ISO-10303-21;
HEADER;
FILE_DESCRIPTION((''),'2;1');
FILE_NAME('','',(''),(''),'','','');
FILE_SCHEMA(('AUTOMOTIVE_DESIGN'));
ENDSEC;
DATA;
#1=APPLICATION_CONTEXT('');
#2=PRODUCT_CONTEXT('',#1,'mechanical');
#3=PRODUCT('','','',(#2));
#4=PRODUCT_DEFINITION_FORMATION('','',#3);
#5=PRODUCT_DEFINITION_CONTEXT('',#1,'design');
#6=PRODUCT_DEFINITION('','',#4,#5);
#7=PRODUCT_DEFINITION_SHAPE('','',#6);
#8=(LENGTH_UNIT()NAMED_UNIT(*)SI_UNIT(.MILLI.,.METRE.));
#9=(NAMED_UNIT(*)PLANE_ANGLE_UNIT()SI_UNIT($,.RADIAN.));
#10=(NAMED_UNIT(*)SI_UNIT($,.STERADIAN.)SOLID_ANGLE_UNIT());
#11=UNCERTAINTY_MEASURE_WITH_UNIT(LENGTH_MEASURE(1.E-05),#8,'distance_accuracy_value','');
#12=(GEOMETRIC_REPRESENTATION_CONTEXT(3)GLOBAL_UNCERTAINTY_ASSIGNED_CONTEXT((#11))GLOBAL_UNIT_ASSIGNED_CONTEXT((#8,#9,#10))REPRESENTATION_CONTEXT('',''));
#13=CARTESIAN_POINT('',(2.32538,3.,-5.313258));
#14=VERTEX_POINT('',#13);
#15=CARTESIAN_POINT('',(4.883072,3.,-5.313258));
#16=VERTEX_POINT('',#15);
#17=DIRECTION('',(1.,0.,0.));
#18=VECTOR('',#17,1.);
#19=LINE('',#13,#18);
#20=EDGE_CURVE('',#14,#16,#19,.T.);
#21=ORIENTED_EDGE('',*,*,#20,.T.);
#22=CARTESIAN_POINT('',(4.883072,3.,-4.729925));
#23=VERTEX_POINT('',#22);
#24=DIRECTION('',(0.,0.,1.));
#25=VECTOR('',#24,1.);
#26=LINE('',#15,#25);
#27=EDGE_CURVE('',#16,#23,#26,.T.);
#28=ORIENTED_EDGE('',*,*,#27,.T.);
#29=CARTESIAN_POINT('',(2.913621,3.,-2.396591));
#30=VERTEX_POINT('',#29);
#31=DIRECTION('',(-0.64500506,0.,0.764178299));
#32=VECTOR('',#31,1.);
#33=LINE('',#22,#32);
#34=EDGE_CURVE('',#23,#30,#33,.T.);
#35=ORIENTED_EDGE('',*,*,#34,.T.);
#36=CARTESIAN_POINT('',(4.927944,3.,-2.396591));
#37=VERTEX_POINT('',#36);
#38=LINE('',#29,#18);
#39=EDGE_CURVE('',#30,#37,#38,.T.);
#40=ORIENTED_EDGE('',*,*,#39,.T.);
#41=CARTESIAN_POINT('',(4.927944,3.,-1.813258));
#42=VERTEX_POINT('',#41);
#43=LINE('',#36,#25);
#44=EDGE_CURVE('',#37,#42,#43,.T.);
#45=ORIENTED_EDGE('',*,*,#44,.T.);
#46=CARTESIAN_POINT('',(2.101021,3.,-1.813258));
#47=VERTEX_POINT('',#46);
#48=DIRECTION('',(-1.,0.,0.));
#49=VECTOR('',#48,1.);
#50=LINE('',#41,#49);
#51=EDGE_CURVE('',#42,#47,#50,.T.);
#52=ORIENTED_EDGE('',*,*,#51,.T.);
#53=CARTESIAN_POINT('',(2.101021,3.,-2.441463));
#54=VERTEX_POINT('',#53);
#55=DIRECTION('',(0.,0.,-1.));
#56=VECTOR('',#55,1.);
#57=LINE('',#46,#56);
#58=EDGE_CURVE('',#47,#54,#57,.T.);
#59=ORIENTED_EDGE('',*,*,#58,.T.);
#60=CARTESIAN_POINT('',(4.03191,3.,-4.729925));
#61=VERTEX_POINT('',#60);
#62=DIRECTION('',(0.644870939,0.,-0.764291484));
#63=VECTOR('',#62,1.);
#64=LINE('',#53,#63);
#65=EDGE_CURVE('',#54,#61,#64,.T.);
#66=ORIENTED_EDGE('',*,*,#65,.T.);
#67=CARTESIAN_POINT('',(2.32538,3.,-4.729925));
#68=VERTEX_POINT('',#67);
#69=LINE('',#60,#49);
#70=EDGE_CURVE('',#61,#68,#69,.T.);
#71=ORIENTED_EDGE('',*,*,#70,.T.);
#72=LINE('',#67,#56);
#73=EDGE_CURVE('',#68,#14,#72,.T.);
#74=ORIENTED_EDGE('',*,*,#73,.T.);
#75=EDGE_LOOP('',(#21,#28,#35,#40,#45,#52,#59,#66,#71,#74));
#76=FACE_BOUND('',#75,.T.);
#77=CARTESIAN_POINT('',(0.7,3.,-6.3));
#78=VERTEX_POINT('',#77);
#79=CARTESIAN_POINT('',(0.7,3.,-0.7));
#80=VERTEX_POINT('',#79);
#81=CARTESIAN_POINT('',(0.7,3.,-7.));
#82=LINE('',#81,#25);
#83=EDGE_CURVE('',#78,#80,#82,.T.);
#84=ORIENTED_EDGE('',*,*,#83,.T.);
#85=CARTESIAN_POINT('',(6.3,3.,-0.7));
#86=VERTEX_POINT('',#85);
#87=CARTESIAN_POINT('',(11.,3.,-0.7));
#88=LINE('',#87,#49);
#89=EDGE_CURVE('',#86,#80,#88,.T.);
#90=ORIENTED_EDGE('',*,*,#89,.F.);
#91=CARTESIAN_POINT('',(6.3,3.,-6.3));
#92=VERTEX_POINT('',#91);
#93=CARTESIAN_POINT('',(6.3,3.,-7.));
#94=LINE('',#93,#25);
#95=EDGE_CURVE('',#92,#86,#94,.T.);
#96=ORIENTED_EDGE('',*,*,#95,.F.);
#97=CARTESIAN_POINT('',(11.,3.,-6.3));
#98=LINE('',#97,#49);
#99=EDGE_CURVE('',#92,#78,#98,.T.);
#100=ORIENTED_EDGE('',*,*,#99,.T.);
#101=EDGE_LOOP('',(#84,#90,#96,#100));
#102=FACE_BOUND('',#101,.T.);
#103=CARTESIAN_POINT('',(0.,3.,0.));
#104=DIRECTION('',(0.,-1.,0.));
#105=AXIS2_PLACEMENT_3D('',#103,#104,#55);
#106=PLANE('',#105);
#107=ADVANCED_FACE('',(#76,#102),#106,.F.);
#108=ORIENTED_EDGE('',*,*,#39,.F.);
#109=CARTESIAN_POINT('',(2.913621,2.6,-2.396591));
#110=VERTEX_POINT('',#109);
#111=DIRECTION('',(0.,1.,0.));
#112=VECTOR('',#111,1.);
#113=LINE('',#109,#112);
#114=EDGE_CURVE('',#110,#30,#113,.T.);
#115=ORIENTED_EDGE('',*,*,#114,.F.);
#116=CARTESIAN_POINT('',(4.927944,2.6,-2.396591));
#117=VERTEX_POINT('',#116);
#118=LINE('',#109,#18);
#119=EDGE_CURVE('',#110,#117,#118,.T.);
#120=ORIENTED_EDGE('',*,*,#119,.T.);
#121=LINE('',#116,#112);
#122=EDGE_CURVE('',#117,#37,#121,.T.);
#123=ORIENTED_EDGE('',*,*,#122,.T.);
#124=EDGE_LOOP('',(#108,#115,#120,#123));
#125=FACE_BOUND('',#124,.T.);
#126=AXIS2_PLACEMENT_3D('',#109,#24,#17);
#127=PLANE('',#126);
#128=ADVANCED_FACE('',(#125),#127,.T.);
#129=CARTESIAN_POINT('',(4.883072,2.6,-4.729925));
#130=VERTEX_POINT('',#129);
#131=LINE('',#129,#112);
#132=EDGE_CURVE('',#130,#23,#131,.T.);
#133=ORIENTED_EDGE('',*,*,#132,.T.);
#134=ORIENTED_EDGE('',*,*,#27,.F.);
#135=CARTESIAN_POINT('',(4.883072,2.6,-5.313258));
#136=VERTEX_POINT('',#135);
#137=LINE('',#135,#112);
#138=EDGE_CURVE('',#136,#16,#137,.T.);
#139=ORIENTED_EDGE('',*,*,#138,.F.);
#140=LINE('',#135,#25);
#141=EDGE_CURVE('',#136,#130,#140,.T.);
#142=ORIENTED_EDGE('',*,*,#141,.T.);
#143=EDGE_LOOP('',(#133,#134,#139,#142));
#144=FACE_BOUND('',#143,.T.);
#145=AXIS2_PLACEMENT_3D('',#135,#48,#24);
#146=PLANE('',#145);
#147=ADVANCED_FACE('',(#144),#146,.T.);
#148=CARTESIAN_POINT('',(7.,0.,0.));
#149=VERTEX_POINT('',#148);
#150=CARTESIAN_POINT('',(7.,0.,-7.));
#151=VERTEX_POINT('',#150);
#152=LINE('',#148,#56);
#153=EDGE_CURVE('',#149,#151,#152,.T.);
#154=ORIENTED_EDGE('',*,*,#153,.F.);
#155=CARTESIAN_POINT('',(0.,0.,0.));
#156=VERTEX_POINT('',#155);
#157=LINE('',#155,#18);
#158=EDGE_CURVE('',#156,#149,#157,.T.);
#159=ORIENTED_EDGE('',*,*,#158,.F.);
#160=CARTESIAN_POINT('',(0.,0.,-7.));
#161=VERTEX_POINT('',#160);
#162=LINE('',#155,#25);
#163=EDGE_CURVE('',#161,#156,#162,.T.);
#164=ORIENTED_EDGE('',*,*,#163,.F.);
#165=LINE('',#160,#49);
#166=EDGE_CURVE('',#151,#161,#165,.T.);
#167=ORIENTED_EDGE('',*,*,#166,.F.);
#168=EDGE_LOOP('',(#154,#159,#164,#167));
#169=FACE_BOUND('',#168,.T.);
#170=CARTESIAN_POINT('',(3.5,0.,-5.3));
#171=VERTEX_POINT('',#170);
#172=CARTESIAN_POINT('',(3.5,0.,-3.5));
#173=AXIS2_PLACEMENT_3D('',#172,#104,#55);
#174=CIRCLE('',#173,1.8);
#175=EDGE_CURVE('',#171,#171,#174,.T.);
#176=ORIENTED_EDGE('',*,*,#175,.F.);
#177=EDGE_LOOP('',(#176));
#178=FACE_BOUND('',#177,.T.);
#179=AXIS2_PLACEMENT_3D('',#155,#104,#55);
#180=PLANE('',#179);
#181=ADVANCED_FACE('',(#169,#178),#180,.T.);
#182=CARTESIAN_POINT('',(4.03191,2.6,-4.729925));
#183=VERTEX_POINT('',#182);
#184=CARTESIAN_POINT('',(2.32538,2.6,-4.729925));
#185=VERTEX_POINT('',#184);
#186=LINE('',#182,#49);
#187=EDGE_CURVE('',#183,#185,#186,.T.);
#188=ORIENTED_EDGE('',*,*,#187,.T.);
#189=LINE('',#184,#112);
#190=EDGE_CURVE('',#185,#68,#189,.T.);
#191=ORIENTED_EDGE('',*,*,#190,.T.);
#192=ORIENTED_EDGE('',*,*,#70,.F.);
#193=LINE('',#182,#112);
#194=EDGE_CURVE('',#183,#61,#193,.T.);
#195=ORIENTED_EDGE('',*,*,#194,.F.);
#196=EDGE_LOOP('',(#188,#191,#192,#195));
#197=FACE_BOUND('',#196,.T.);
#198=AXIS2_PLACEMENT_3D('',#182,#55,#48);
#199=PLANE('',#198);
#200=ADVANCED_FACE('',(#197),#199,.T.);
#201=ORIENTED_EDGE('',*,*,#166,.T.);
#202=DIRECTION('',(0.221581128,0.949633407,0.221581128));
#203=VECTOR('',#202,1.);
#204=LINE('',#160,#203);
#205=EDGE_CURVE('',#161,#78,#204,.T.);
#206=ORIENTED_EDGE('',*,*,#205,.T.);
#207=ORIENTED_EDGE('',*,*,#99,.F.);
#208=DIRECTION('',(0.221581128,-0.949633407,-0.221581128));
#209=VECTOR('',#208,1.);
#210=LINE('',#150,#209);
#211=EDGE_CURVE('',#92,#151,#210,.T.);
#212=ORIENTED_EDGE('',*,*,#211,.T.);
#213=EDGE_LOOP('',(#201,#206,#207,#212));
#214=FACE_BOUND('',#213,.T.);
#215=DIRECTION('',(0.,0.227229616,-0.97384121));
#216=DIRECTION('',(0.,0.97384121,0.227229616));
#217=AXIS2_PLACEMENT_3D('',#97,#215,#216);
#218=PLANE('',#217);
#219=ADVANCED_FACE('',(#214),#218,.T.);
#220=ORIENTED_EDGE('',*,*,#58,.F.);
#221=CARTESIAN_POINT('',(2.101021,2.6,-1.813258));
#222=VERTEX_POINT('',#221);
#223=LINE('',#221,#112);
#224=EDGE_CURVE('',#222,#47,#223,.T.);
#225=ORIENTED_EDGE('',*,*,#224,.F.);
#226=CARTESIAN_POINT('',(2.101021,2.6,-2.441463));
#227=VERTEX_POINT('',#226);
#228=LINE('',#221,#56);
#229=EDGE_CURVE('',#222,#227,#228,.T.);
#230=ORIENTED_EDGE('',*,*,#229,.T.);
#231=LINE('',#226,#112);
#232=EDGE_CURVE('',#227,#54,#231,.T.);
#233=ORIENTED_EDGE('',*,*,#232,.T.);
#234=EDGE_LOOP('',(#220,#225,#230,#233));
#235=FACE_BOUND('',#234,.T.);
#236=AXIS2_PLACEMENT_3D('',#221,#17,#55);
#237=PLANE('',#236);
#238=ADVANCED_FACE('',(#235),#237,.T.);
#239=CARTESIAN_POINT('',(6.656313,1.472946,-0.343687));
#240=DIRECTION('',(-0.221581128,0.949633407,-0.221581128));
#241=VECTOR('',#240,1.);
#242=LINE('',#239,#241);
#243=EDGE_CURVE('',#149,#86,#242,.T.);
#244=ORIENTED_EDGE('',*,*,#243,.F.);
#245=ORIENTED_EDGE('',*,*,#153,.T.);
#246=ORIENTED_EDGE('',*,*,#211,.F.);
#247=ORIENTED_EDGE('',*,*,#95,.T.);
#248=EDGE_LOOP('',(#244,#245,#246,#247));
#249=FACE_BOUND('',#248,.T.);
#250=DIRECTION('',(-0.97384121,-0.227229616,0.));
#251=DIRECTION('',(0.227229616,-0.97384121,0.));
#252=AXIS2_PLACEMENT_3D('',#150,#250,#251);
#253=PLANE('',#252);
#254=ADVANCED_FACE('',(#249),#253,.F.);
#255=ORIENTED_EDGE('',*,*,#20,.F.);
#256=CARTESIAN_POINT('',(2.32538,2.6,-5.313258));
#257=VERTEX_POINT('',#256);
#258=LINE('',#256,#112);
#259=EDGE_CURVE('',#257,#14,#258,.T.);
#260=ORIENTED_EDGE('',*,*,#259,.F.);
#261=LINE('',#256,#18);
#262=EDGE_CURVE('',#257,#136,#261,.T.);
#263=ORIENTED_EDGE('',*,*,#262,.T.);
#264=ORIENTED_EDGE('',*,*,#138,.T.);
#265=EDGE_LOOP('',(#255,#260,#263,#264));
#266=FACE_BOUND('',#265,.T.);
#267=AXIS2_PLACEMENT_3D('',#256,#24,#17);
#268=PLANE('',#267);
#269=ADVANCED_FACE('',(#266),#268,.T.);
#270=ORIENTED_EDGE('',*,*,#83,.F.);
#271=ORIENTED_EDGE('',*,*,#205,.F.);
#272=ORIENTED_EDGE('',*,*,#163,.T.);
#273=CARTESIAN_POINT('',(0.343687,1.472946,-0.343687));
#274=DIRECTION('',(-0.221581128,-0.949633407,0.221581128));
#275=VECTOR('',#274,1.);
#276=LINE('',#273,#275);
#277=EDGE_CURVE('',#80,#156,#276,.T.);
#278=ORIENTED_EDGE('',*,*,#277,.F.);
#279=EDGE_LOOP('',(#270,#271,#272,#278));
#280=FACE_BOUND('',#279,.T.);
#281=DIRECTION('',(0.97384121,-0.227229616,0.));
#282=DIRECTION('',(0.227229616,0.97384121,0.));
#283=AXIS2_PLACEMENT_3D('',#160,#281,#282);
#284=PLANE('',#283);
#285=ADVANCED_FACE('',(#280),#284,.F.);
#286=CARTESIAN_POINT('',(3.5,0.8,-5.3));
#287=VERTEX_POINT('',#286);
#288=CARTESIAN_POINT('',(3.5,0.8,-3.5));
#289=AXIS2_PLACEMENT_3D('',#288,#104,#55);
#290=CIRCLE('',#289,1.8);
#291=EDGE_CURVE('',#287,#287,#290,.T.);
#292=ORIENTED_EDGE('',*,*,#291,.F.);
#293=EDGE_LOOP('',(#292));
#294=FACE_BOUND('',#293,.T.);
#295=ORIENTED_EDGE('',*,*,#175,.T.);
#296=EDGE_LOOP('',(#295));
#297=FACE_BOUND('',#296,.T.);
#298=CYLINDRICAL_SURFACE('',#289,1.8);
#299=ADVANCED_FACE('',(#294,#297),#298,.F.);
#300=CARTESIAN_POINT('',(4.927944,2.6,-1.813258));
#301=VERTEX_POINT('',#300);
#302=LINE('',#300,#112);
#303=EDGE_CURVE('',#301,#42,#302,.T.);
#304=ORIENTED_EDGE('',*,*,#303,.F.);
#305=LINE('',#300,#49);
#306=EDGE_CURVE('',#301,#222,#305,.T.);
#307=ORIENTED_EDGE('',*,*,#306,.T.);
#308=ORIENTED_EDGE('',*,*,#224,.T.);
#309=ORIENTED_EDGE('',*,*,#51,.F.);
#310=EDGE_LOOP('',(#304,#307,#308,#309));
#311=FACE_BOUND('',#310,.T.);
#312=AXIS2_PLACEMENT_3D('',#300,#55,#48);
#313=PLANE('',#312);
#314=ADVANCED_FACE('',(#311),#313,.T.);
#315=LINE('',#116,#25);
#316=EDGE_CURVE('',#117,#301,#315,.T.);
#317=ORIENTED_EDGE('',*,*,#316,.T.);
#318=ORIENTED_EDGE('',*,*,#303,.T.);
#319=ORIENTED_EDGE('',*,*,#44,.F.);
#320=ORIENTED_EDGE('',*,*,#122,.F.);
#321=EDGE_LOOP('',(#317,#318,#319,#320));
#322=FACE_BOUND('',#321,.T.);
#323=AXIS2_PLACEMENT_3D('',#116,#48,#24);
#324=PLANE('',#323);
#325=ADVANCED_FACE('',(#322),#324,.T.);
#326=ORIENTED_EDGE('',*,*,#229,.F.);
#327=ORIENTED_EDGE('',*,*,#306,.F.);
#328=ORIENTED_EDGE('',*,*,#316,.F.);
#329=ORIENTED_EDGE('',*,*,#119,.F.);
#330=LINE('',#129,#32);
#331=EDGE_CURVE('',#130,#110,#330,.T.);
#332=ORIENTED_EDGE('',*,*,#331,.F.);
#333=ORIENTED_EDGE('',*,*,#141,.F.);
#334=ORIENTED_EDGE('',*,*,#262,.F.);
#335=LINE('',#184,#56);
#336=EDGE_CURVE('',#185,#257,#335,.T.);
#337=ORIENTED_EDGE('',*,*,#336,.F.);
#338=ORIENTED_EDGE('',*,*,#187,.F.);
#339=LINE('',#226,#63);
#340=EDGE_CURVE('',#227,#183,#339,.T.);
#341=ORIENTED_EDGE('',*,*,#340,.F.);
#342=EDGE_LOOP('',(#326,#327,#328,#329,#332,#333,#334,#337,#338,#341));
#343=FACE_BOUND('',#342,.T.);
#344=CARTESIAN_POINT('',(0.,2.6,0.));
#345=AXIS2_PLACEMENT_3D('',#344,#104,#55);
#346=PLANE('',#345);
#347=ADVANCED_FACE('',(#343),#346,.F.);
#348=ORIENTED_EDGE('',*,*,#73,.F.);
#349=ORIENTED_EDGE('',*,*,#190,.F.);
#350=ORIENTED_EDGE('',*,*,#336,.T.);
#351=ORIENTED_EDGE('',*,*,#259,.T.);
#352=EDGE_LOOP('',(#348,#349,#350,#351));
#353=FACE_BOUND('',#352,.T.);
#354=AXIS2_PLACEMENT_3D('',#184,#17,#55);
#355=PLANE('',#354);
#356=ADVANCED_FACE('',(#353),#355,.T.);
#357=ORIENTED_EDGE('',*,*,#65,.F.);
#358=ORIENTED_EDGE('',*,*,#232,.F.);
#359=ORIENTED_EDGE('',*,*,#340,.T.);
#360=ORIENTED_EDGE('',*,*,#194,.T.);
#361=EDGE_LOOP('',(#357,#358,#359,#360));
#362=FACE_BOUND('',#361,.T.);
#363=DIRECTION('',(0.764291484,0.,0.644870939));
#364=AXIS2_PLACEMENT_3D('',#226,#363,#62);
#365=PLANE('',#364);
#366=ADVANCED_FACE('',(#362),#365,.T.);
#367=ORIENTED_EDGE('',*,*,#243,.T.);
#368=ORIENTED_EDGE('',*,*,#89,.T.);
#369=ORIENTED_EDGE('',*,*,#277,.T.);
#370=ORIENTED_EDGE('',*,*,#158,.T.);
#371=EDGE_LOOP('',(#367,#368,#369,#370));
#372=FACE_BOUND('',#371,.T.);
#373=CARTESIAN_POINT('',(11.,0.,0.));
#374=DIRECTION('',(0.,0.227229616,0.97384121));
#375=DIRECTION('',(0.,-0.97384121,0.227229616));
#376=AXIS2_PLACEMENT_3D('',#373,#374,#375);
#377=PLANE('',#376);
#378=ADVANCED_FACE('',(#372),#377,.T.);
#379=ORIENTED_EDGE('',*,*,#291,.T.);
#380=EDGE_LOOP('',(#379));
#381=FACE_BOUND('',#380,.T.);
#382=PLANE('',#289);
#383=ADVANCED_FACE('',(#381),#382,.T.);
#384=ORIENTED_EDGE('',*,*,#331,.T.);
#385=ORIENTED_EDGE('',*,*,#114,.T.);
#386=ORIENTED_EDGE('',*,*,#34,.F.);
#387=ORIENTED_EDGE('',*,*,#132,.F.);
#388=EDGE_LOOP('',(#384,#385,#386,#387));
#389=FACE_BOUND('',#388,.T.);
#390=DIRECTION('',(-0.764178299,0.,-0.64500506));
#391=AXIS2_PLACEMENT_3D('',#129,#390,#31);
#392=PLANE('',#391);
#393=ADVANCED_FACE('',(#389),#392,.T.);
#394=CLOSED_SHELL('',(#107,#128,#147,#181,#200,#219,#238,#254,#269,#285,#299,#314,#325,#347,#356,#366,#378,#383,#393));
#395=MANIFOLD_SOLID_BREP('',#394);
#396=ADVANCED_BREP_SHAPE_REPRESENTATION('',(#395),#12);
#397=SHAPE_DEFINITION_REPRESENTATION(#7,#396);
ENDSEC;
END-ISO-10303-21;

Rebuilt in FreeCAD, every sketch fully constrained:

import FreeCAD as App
import Part
import Sketcher
from FreeCAD import Vector

doc = App.newDocument("Part")
body = doc.addObject("PartDesign::Body", "Body")

sketch1 = body.newObject("Sketcher::SketchObject", "Sketch")
sketch1.AttachmentSupport = (doc.getObject("XZ_Plane"), [""])
sketch1.MapMode = "FlatFace"
sketch1.addGeometry([
    Part.LineSegment(Vector(0, -7, 0), Vector(0, 0, 0)),
    Part.LineSegment(Vector(0, 0, 0), Vector(7, 0, 0)),
    Part.LineSegment(Vector(7, 0, 0), Vector(7, -7, 0)),
    Part.LineSegment(Vector(7, -7, 0), Vector(0, -7, 0)),
], False)
sketch1.addConstraint([
    Sketcher.Constraint("Coincident", 0, 2, 1, 1),
    Sketcher.Constraint("Coincident", 1, 2, 2, 1),
    Sketcher.Constraint("Coincident", 2, 2, 3, 1),
    Sketcher.Constraint("Coincident", 3, 2, 0, 1),
    Sketcher.Constraint("Vertical", 0),
    Sketcher.Constraint("Horizontal", 1),
    Sketcher.Constraint("Vertical", 2),
    Sketcher.Constraint("Horizontal", 3),
    Sketcher.Constraint("Coincident", 0, 2, -1, 1),
    Sketcher.Constraint("Equal", 3, 0),
    Sketcher.Constraint("DistanceX", 1, 1, 1, 2, 7.0),
])
pad1 = body.newObject("PartDesign::Pad", "Pad")
pad1.Profile = sketch1
pad1.Length = 3
pad1.Reversed = True

sketch2 = body.newObject("Sketcher::SketchObject", "Sketch001")
sketch2.AttachmentSupport = (doc.getObject("XY_Plane"), [""])
sketch2.MapMode = "FlatFace"
sketch2.addGeometry([
    Part.LineSegment(Vector(0, 0, 0), Vector(0.7, 3, 0)),
    Part.LineSegment(Vector(0.7, 3, 0), Vector(0, 3, 0)),
    Part.LineSegment(Vector(0, 3, 0), Vector(0, 0, 0)),
    Part.LineSegment(Vector(6.3, 3, 0), Vector(7, 0, 0)),
    Part.LineSegment(Vector(7, 0, 0), Vector(7, 3, 0)),
    Part.LineSegment(Vector(7, 3, 0), Vector(6.3, 3, 0)),
], False)
sketch2.addConstraint([
    Sketcher.Constraint("Coincident", 0, 2, 1, 1),
    Sketcher.Constraint("Coincident", 1, 2, 2, 1),
    Sketcher.Constraint("Coincident", 2, 2, 0, 1),
    Sketcher.Constraint("Coincident", 3, 2, 4, 1),
    Sketcher.Constraint("Coincident", 4, 2, 5, 1),
    Sketcher.Constraint("Coincident", 5, 2, 3, 1),
    Sketcher.Constraint("Horizontal", 1),
    Sketcher.Constraint("Vertical", 2),
    Sketcher.Constraint("Vertical", 4),
    Sketcher.Constraint("Horizontal", 5),
    Sketcher.Constraint("Coincident", 2, 2, -1, 1),
    Sketcher.Constraint("PointOnObject", 3, 2, -1),
    Sketcher.Constraint("Horizontal", 1, 2, 4, 2),
    Sketcher.Constraint("Equal", 1, 5),
    Sketcher.Constraint("DistanceY", 2, 2, 2, 1, 3.0),
    Sketcher.Constraint("DistanceX", 1, 2, 1, 1, 0.7),
    Sketcher.Constraint("DistanceX", -1, 1, 3, 2, 7.0),
])
pocket1 = body.newObject("PartDesign::Pocket", "Pocket")
pocket1.Profile = sketch2
pocket1.Length = 7

sketch3 = body.newObject("Sketcher::SketchObject", "Sketch002")
sketch3.AttachmentSupport = (doc.getObject("YZ_Plane"), [""])
sketch3.MapMode = "FlatFace"
sketch3.addGeometry([
    Part.LineSegment(Vector(0, 0, 0), Vector(3, -0.7, 0)),
    Part.LineSegment(Vector(3, -0.7, 0), Vector(3, 0, 0)),
    Part.LineSegment(Vector(3, 0, 0), Vector(0, 0, 0)),
    Part.LineSegment(Vector(3, -7, 0), Vector(3, -6.3, 0)),
    Part.LineSegment(Vector(3, -6.3, 0), Vector(0, -7, 0)),
    Part.LineSegment(Vector(0, -7, 0), Vector(3, -7, 0)),
], False)
sketch3.addConstraint([
    Sketcher.Constraint("Coincident", 0, 2, 1, 1),
    Sketcher.Constraint("Coincident", 1, 2, 2, 1),
    Sketcher.Constraint("Coincident", 2, 2, 0, 1),
    Sketcher.Constraint("Coincident", 3, 2, 4, 1),
    Sketcher.Constraint("Coincident", 4, 2, 5, 1),
    Sketcher.Constraint("Coincident", 5, 2, 3, 1),
    Sketcher.Constraint("Vertical", 1),
    Sketcher.Constraint("Horizontal", 2),
    Sketcher.Constraint("Vertical", 3),
    Sketcher.Constraint("Horizontal", 5),
    Sketcher.Constraint("Coincident", 2, 2, -1, 1),
    Sketcher.Constraint("PointOnObject", 4, 2, -2),
    Sketcher.Constraint("Vertical", 1, 2, 3, 2),
    Sketcher.Constraint("Equal", 1, 3),
    Sketcher.Constraint("DistanceX", 2, 2, 2, 1, 3.0),
    Sketcher.Constraint("DistanceY", 1, 1, 1, 2, 0.7),
    Sketcher.Constraint("DistanceY", 4, 2, -1, 1, 7.0),
])
pocket2 = body.newObject("PartDesign::Pocket", "Pocket001")
pocket2.Profile = sketch3
pocket2.Length = 11
pocket2.Reversed = True

sketch4 = body.newObject("Sketcher::SketchObject", "Sketch003")
sketch4.AttachmentSupport = (doc.getObject("XZ_Plane"), [""])
sketch4.MapMode = "FlatFace"
sketch4.addGeometry(Part.Circle(Vector(3.5, -3.5, 0), Vector(0, 0, 1), 1.8), False)
sketch4.addConstraint([
    Sketcher.Constraint("Diameter", 0, 3.6),
    Sketcher.Constraint("DistanceX", -1, 1, 0, 3, 3.5),
    Sketcher.Constraint("DistanceY", 0, 3, -1, 1, 3.5),
])
pocket3 = body.newObject("PartDesign::Pocket", "Pocket002")
pocket3.Profile = sketch4
pocket3.Length = 0.8

sketch5 = body.newObject("Sketcher::SketchObject", "Sketch004")
sketch5.AttachmentSupport = (doc.getObject("XZ_Plane"), [""])
sketch5.MapMode = "FlatFace"
sketch5.AttachmentOffset = App.Placement(Vector(0, 0, -3), App.Rotation())
sketch5.addGeometry([
    Part.LineSegment(Vector(2.101021, -2.441463, 0), Vector(2.101021, -1.813258, 0)),
    Part.LineSegment(Vector(2.101021, -1.813258, 0), Vector(4.927944, -1.813258, 0)),
    Part.LineSegment(Vector(4.927944, -1.813258, 0), Vector(4.927944, -2.396591, 0)),
    Part.LineSegment(Vector(4.927944, -2.396591, 0), Vector(2.913621, -2.396591, 0)),
    Part.LineSegment(Vector(2.913621, -2.396591, 0), Vector(4.883072, -4.729925, 0)),
    Part.LineSegment(Vector(4.883072, -4.729925, 0), Vector(4.883072, -5.313258, 0)),
    Part.LineSegment(Vector(4.883072, -5.313258, 0), Vector(2.32538, -5.313258, 0)),
    Part.LineSegment(Vector(2.32538, -5.313258, 0), Vector(2.32538, -4.729925, 0)),
    Part.LineSegment(Vector(2.32538, -4.729925, 0), Vector(4.03191, -4.729925, 0)),
    Part.LineSegment(Vector(4.03191, -4.729925, 0), Vector(2.101021, -2.441463, 0)),
], False)
sketch5.addConstraint([
    Sketcher.Constraint("Coincident", 0, 2, 1, 1),
    Sketcher.Constraint("Coincident", 1, 2, 2, 1),
    Sketcher.Constraint("Coincident", 2, 2, 3, 1),
    Sketcher.Constraint("Coincident", 3, 2, 4, 1),
    Sketcher.Constraint("Coincident", 4, 2, 5, 1),
    Sketcher.Constraint("Coincident", 5, 2, 6, 1),
    Sketcher.Constraint("Coincident", 6, 2, 7, 1),
    Sketcher.Constraint("Coincident", 7, 2, 8, 1),
    Sketcher.Constraint("Coincident", 8, 2, 9, 1),
    Sketcher.Constraint("Coincident", 9, 2, 0, 1),
    Sketcher.Constraint("Vertical", 0),
    Sketcher.Constraint("Horizontal", 1),
    Sketcher.Constraint("Vertical", 2),
    Sketcher.Constraint("Horizontal", 3),
    Sketcher.Constraint("Vertical", 5),
    Sketcher.Constraint("Horizontal", 6),
    Sketcher.Constraint("Vertical", 7),
    Sketcher.Constraint("Horizontal", 8),
    Sketcher.Constraint("Horizontal", 4, 2, 7, 2),
    Sketcher.Constraint("Equal", 2, 5),
    Sketcher.Constraint("DistanceY", 5, 2, 1, 2, 3.5),
    Sketcher.Constraint("DistanceX", 8, 1, 8, 2, 1.70653),
    Sketcher.Constraint("DistanceX", 0, 2, 3, 2, 0.8126),
    Sketcher.Constraint("Distance", 4, 3.053389),
    Sketcher.Constraint("DistanceX", 1, 1, 1, 2, 2.826923),
    Sketcher.Constraint("DistanceX", 6, 2, 6, 1, 2.557692),
    Sketcher.Constraint("DistanceY", 0, 1, 0, 2, 0.628205),
    Sketcher.Constraint("DistanceY", 2, 2, 2, 1, 0.583333),
    Sketcher.Constraint("DistanceX", -1, 1, 0, 2, 2.101021),
    Sketcher.Constraint("DistanceY", 0, 2, -1, 1, 1.813258),
])
pocket4 = body.newObject("PartDesign::Pocket", "Pocket003")
pocket4.Profile = sketch5
pocket4.Length = 0.4
pocket4.Reversed = True

doc.recompute()
